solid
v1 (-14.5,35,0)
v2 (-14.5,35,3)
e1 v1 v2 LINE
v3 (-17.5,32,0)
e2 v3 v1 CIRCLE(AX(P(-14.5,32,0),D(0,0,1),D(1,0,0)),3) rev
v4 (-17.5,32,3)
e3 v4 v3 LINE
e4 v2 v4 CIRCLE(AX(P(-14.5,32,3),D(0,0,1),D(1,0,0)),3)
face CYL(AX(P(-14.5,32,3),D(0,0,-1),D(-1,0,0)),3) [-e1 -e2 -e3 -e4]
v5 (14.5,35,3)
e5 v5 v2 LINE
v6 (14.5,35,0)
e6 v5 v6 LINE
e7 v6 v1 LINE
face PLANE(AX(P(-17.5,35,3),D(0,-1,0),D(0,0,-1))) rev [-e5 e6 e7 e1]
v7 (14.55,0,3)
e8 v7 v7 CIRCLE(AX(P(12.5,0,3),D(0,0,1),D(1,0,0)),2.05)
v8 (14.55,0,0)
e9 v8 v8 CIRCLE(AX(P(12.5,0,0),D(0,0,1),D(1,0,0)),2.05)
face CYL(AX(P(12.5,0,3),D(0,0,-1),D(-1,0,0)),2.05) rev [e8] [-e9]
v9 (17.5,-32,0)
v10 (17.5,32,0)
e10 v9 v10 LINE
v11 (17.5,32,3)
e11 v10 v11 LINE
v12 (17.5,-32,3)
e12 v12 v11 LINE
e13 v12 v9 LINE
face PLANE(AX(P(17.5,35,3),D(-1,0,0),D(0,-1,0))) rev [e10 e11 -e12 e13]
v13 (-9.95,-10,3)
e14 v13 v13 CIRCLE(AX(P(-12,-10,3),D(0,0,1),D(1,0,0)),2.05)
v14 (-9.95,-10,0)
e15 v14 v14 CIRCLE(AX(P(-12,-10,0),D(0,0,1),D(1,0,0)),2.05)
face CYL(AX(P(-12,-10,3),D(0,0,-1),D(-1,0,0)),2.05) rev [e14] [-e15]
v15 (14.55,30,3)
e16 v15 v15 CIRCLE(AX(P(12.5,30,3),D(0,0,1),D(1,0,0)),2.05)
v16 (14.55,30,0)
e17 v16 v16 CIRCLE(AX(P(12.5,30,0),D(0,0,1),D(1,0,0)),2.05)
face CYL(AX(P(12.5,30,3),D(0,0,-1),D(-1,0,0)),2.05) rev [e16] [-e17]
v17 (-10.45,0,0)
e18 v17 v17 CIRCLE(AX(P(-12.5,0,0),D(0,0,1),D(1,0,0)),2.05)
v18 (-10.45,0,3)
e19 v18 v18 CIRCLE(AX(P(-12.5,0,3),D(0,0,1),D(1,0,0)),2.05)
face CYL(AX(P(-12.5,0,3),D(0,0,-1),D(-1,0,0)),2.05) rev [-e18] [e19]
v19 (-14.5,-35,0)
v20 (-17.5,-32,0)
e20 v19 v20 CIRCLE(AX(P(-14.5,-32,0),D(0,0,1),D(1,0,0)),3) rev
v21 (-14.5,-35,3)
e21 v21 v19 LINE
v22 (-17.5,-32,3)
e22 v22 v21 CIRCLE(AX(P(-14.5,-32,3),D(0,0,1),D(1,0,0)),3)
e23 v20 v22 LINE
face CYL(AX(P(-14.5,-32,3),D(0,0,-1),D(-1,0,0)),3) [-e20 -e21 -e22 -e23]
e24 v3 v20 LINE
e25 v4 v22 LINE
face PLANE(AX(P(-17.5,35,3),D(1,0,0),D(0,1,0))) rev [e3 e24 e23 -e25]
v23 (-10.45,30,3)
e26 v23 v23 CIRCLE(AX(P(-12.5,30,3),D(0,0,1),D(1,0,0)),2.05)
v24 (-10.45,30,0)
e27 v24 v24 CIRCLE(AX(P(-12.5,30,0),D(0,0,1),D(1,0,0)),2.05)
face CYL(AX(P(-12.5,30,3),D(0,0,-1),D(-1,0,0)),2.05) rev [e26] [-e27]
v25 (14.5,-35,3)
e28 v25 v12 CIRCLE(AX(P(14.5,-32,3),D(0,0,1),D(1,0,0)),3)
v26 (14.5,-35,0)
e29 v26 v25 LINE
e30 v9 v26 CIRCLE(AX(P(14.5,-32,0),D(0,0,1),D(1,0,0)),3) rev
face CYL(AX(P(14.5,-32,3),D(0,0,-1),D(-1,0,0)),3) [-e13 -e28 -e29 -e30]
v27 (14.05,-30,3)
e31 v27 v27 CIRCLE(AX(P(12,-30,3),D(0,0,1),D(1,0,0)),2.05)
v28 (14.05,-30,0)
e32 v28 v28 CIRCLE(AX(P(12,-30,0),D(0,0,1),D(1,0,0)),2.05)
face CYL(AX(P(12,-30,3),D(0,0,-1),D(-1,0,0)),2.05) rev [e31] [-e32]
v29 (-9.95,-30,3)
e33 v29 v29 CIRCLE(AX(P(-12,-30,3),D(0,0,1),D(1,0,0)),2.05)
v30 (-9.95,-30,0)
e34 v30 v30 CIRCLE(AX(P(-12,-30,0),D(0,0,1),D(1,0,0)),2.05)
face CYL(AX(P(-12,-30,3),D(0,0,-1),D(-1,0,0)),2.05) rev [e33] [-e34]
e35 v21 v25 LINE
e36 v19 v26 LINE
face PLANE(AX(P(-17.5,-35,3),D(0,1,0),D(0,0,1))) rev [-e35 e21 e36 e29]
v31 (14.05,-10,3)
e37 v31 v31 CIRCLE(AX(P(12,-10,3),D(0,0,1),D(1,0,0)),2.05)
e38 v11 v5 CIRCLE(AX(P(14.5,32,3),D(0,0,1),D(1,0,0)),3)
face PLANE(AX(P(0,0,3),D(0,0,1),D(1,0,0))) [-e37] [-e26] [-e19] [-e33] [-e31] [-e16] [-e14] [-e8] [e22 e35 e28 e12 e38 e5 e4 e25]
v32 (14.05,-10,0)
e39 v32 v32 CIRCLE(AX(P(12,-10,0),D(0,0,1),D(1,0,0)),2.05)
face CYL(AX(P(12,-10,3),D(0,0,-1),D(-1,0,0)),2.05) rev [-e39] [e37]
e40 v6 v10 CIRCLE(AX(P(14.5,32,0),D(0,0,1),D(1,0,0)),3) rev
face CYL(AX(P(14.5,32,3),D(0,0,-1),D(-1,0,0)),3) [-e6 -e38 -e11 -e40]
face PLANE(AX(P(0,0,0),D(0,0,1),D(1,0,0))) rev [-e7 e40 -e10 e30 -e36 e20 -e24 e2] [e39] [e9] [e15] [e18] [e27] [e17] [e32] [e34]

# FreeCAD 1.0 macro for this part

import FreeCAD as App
import Part
import Sketcher
from FreeCAD import Vector
Q = App.Units.Quantity


def edges_at(feature, points):
    """Names of the edges that pass closest to the given points."""
    edges = feature.Shape.Edges
    near = lambda p: min(range(len(edges)), key=lambda i: edges[i].distToShape(Part.Vertex(*p))[0])
    return sorted({f"Edge{near(p) + 1}" for p in points})

doc = App.newDocument("Part")
body = doc.addObject("PartDesign::Body", "Body")

# Sketch on XY plane
sketch1 = body.newObject("Sketcher::SketchObject", "Sketch")
sketch1.AttachmentSupport = (doc.getObject("XY_Plane"), [""])
sketch1.MapMode = "FlatFace"
sketch1.addGeometry([
    Part.LineSegment(Vector(-17.5, 35, 0), Vector(-17.5, -35, 0)),  # 0
    Part.LineSegment(Vector(-17.5, -35, 0), Vector(17.5, -35, 0)),  # 1
    Part.LineSegment(Vector(17.5, -35, 0), Vector(17.5, 35, 0)),  # 2
    Part.LineSegment(Vector(17.5, 35, 0), Vector(-17.5, 35, 0)),  # 3
    Part.Circle(Vector(-12, -30, 0), Vector(0, 0, 1), 2),  # 4
    Part.Circle(Vector(-12, -10, 0), Vector(0, 0, 1), 2),  # 5
    Part.Circle(Vector(12, -30, 0), Vector(0, 0, 1), 2),  # 6
    Part.Circle(Vector(12, -10, 0), Vector(0, 0, 1), 2),  # 7
    Part.Circle(Vector(-12.5, 0, 0), Vector(0, 0, 1), 2),  # 8
    Part.Circle(Vector(-12.5, 30, 0), Vector(0, 0, 1), 2),  # 9
    Part.Circle(Vector(12.5, 0, 0), Vector(0, 0, 1), 2),  # 10
    Part.Circle(Vector(12.5, 30, 0), Vector(0, 0, 1), 2),  # 11
], False)
sketch1.addConstraint([
    Sketcher.Constraint("Coincident", 0, 2, 1, 1),
    Sketcher.Constraint("Coincident", 1, 2, 2, 1),
    Sketcher.Constraint("Coincident", 2, 2, 3, 1),
    Sketcher.Constraint("Coincident", 3, 2, 0, 1),
    Sketcher.Constraint("Vertical", 0),
    Sketcher.Constraint("Horizontal", 1),
    Sketcher.Constraint("Vertical", 2),
    Sketcher.Constraint("Horizontal", 3),
    Sketcher.Constraint("Equal", 4, 5),
    Sketcher.Constraint("Equal", 5, 6),
    Sketcher.Constraint("Equal", 6, 7),
    Sketcher.Constraint("Equal", 7, 8),
    Sketcher.Constraint("Equal", 8, 9),
    Sketcher.Constraint("Equal", 9, 10),
    Sketcher.Constraint("Equal", 10, 11),
    Sketcher.Constraint("Symmetric", 8, 3, 10, 3, -1, 1),
    Sketcher.Constraint("Symmetric", 0, 2, 2, 2, -1, 1),
    Sketcher.Constraint("Symmetric", 4, 3, 6, 3, -2),
    Sketcher.Constraint("Symmetric", 5, 3, 7, 3, -2),
    Sketcher.Constraint("Symmetric", 9, 3, 11, 3, -2),
    Sketcher.Constraint("PointOnObject", 8, 3, -1),
    Sketcher.Constraint("Vertical", 4, 3, 5, 3),
    Sketcher.Constraint("Vertical", 8, 3, 9, 3),
    Sketcher.Constraint("Diameter", 4, Q("4.1 mm")),
    Sketcher.Constraint("DistanceX", 1, 1, 1, 2, Q("35 mm")),
    Sketcher.Constraint("DistanceY", 0, 2, 0, 1, Q("70 mm")),
    Sketcher.Constraint("DistanceX", 4, 3, -1, 1, Q("12 mm")),
    Sketcher.Constraint("DistanceY", 4, 3, -1, 1, Q("30 mm")),
    Sketcher.Constraint("DistanceY", 5, 3, -1, 1, Q("10 mm")),
    Sketcher.Constraint("DistanceY", -1, 1, 9, 3, Q("30 mm")),
    Sketcher.Constraint("DistanceX", 8, 3, 10, 3, Q("25 mm")),
])
pad1 = body.newObject("PartDesign::Pad", "Pad")
pad1.Profile = sketch1
pad1.Length = 3
doc.recompute()

fillet = body.newObject("PartDesign::Fillet", "Fillet")
fillet.Base = (pad1, edges_at(pad1, [
    (17.5, -35, 1.5),
    (-17.5, -35, 1.5),
    (-17.5, 35, 1.5),
    (17.5, 35, 1.5),
]))
fillet.Radius = 3

doc.recompute()
